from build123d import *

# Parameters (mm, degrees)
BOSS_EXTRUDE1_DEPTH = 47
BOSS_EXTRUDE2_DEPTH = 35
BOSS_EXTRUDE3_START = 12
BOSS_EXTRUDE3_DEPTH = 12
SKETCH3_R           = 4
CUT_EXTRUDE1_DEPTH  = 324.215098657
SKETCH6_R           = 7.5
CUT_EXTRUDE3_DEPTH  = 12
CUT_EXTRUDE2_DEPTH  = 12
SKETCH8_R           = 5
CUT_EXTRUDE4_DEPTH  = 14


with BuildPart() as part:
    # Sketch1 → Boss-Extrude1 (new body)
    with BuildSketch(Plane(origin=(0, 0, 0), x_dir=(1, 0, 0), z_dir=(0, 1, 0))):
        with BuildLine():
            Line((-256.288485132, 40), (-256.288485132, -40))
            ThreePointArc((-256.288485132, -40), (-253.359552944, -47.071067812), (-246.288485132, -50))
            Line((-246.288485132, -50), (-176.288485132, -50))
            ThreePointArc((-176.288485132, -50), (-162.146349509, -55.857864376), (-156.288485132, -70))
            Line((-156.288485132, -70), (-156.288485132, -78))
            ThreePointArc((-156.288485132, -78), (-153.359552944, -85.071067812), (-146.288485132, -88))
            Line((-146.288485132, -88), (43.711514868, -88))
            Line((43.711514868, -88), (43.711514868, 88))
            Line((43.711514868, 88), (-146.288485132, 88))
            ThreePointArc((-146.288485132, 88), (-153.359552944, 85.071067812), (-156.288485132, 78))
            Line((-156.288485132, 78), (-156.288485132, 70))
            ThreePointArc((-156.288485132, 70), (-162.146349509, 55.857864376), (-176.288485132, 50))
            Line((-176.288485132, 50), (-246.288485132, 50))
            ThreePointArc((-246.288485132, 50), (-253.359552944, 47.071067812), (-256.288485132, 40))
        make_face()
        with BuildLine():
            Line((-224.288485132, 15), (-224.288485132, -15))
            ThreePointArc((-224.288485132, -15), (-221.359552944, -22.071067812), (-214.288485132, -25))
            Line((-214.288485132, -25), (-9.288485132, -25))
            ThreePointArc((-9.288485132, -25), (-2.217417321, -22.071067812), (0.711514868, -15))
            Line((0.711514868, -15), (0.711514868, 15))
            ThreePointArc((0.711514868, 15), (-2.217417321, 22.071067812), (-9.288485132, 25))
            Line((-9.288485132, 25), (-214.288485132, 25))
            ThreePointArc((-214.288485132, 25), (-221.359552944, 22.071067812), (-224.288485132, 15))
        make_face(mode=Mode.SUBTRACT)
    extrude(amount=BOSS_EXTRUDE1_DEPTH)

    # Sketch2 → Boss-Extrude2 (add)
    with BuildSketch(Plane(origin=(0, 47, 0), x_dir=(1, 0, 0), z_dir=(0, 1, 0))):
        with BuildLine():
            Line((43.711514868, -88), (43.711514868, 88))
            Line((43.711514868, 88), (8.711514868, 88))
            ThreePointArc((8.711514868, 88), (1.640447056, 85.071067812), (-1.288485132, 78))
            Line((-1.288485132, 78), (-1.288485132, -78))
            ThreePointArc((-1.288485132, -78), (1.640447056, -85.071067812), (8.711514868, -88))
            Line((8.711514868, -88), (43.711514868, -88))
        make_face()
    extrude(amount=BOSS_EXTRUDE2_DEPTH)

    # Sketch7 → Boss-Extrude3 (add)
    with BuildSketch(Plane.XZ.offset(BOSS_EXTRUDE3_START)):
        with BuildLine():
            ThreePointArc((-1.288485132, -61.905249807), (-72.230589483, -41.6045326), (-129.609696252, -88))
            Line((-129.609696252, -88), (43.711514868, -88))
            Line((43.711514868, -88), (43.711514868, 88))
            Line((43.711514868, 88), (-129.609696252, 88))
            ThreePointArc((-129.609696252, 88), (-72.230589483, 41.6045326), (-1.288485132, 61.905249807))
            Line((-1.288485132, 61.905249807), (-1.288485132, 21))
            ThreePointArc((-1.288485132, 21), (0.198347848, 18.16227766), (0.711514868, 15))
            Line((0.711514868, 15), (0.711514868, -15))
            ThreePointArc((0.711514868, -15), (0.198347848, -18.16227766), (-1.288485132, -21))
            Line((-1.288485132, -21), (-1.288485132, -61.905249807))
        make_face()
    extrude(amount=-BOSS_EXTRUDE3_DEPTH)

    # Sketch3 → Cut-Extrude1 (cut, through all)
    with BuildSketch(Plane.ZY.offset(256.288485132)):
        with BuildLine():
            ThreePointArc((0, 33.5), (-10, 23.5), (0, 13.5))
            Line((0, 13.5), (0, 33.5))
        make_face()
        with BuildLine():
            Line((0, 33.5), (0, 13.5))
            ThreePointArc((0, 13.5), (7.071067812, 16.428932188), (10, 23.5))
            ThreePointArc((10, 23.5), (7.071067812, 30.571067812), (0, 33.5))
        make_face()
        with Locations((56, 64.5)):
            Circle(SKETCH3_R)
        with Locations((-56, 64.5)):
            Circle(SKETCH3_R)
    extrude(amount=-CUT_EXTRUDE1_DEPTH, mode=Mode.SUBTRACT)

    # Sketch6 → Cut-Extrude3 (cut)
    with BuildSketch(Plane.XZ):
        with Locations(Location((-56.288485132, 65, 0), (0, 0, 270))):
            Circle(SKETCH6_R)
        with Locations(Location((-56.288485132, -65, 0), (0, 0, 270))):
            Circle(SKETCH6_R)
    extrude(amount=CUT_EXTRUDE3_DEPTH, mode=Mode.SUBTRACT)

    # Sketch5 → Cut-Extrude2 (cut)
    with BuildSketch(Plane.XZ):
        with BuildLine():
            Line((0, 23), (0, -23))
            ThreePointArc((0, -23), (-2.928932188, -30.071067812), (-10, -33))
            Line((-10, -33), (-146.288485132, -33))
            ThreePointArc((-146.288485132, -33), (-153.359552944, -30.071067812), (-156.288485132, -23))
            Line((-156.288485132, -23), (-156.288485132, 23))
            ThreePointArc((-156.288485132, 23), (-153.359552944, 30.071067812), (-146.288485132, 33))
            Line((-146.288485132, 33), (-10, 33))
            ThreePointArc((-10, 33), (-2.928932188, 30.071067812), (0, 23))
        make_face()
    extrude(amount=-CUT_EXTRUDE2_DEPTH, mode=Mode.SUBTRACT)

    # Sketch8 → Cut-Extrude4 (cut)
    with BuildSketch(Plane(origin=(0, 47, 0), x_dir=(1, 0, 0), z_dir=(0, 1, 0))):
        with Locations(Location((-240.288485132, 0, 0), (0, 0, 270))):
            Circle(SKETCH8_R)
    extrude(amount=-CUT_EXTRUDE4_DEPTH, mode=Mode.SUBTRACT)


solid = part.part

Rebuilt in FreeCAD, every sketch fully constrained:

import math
import FreeCAD as App
import Part
import Sketcher
Q = App.Units.Quantity

doc = App.newDocument("Part")
body = doc.addObject("PartDesign::Body", "Body")

# Sketch on XZ plane
sketch1 = body.newObject("Sketcher::SketchObject", "Sketch")
sketch1.AttachmentSupport = (doc.getObject("XZ_Plane"), [""])
sketch1.MapMode = "FlatFace"
sketch1.addGeometry(Part.LineSegment(App.Vector(-256, -40, 0), App.Vector(-256, 40, 0)), False)
sketch1.addGeometry(Part.ArcOfCircle(Part.Circle(App.Vector(-246, 40, 0), App.Vector(0, 0, 1), 10), math.radians(90), math.radians(180)), False)
sketch1.addGeometry(Part.LineSegment(App.Vector(-246, 50, 0), App.Vector(-176, 50, 0)), False)
sketch1.addGeometry(Part.ArcOfCircle(Part.Circle(App.Vector(-176, 70, 0), App.Vector(0, 0, 1), 20), math.radians(-90), math.radians(0)), False)
sketch1.addGeometry(Part.LineSegment(App.Vector(-156, 70, 0), App.Vector(-156, 78, 0)), False)
sketch1.addGeometry(Part.ArcOfCircle(Part.Circle(App.Vector(-146, 78, 0), App.Vector(0, 0, 1), 10), math.radians(90), math.radians(180)), False)
sketch1.addGeometry(Part.LineSegment(App.Vector(-146, 88, 0), App.Vector(44, 88, 0)), False)
sketch1.addGeometry(Part.LineSegment(App.Vector(44, 88, 0), App.Vector(44, -88, 0)), False)
sketch1.addGeometry(Part.LineSegment(App.Vector(44, -88, 0), App.Vector(-146, -88, 0)), False)
sketch1.addGeometry(Part.ArcOfCircle(Part.Circle(App.Vector(-146, -78, 0), App.Vector(0, 0, 1), 10), math.radians(180), math.radians(270)), False)
sketch1.addGeometry(Part.LineSegment(App.Vector(-156, -78, 0), App.Vector(-156, -70, 0)), False)
sketch1.addGeometry(Part.ArcOfCircle(Part.Circle(App.Vector(-176, -70, 0), App.Vector(0, 0, 1), 20), math.radians(0), math.radians(90)), False)
sketch1.addGeometry(Part.LineSegment(App.Vector(-176, -50, 0), App.Vector(-246, -50, 0)), False)
sketch1.addGeometry(Part.ArcOfCircle(Part.Circle(App.Vector(-246, -40, 0), App.Vector(0, 0, 1), 10), math.radians(180), math.radians(270)), False)
sketch1.addGeometry(Part.LineSegment(App.Vector(-224, 15, 0), App.Vector(-224, -15, 0)), False)
sketch1.addGeometry(Part.ArcOfCircle(Part.Circle(App.Vector(-214, -15, 0), App.Vector(0, 0, 1), 10), math.radians(180), math.radians(270)), False)
sketch1.addGeometry(Part.LineSegment(App.Vector(-214, -25, 0), App.Vector(-9, -25, 0)), False)
sketch1.addGeometry(Part.ArcOfCircle(Part.Circle(App.Vector(-9, -15, 0), App.Vector(0, 0, 1), 10), math.radians(-90), math.radians(0)), False)
sketch1.addGeometry(Part.LineSegment(App.Vector(1, -15, 0), App.Vector(1, 15, 0)), False)
sketch1.addGeometry(Part.ArcOfCircle(Part.Circle(App.Vector(-9, 15, 0), App.Vector(0, 0, 1), 10), math.radians(0), math.radians(90)), False)
sketch1.addGeometry(Part.LineSegment(App.Vector(-9, 25, 0), App.Vector(-214, 25, 0)), False)
sketch1.addGeometry(Part.ArcOfCircle(Part.Circle(App.Vector(-214, 15, 0), App.Vector(0, 0, 1), 10), math.radians(90), math.radians(180)), False)
sketch1.addConstraint(Sketcher.Constraint("Tangent", 0, 2, 1, 2))
sketch1.addConstraint(Sketcher.Constraint("Tangent", 1, 1, 2, 1))
sketch1.addConstraint(Sketcher.Constraint("Tangent", 2, 2, 3, 1))
sketch1.addConstraint(Sketcher.Constraint("Tangent", 3, 2, 4, 1))
sketch1.addConstraint(Sketcher.Constraint("Tangent", 4, 2, 5, 2))
sketch1.addConstraint(Sketcher.Constraint("Tangent", 5, 1, 6, 1))
sketch1.addConstraint(Sketcher.Constraint("Coincident", 6, 2, 7, 1))
sketch1.addConstraint(Sketcher.Constraint("Coincident", 7, 2, 8, 1))
sketch1.addConstraint(Sketcher.Constraint("Tangent", 8, 2, 9, 2))
sketch1.addConstraint(Sketcher.Constraint("Tangent", 9, 1, 10, 1))
sketch1.addConstraint(Sketcher.Constraint("Tangent", 10, 2, 11, 1))
sketch1.addConstraint(Sketcher.Constraint("Tangent", 11, 2, 12, 1))
sketch1.addConstraint(Sketcher.Constraint("Tangent", 12, 2, 13, 2))
sketch1.addConstraint(Sketcher.Constraint("Tangent", 13, 1, 0, 1))
sketch1.addConstraint(Sketcher.Constraint("Tangent", 14, 2, 15, 1))
sketch1.addConstraint(Sketcher.Constraint("Tangent", 15, 2, 16, 1))
sketch1.addConstraint(Sketcher.Constraint("Tangent", 16, 2, 17, 1))
sketch1.addConstraint(Sketcher.Constraint("Tangent", 17, 2, 18, 1))
sketch1.addConstraint(Sketcher.Constraint("Tangent", 18, 2, 19, 1))
sketch1.addConstraint(Sketcher.Constraint("Tangent", 19, 2, 20, 1))
sketch1.addConstraint(Sketcher.Constraint("Tangent", 20, 2, 21, 1))
sketch1.addConstraint(Sketcher.Constraint("Tangent", 21, 2, 14, 1))
sketch1.addConstraint(Sketcher.Constraint("Vertical", 0))
sketch1.addConstraint(Sketcher.Constraint("Horizontal", 2))
sketch1.addConstraint(Sketcher.Constraint("Vertical", 4))
sketch1.addConstraint(Sketcher.Constraint("Horizontal", 6))
sketch1.addConstraint(Sketcher.Constraint("Vertical", 7))
sketch1.addConstraint(Sketcher.Constraint("Horizontal", 8))
sketch1.addConstraint(Sketcher.Constraint("Vertical", 10))
sketch1.addConstraint(Sketcher.Constraint("Horizontal", 12))
sketch1.addConstraint(Sketcher.Constraint("Vertical", 14))
sketch1.addConstraint(Sketcher.Constraint("Horizontal", 16))
sketch1.addConstraint(Sketcher.Constraint("Vertical", 18))
sketch1.addConstraint(Sketcher.Constraint("Horizontal", 20))
sketch1.addConstraint(Sketcher.Constraint("Equal", 1, 5))
sketch1.addConstraint(Sketcher.Constraint("Equal", 5, 9))
sketch1.addConstraint(Sketcher.Constraint("Equal", 3, 11))
sketch1.addConstraint(Sketcher.Constraint("Equal", 9, 13))
sketch1.addConstraint(Sketcher.Constraint("Equal", 13, 15))
sketch1.addConstraint(Sketcher.Constraint("Equal", 15, 17))
sketch1.addConstraint(Sketcher.Constraint("Equal", 17, 19))
sketch1.addConstraint(Sketcher.Constraint("Equal", 19, 21))
sketch1.addConstraint(Sketcher.Constraint("Symmetric", 5, 3, 9, 3, -1))
sketch1.addConstraint(Sketcher.Constraint("Equal", 4, 10))
sketch1.addConstraint(Sketcher.Constraint("Radius", 1, Q("10 mm")))
sketch1.addConstraint(Sketcher.Constraint("Radius", 3, Q("20 mm")))
sketch1.addConstraint(Sketcher.Constraint("DistanceX", 2, 1, 2, 2, Q("70 mm")))
sketch1.addConstraint(Sketcher.Constraint("DistanceX", 6, 1, 6, 2, Q("190 mm")))
sketch1.addConstraint(Sketcher.Constraint("DistanceX", 16, 1, 16, 2, Q("205 mm")))
sketch1.addConstraint(Sketcher.Constraint("DistanceY", 0, 1, 0, 2, Q("80 mm")))
sketch1.addConstraint(Sketcher.Constraint("DistanceY", 4, 1, 4, 2, Q("8 mm")))
sketch1.addConstraint(Sketcher.Constraint("DistanceY", 14, 2, 14, 1, Q("30 mm")))
sketch1.addConstraint(Sketcher.Constraint("DistanceY", 15, 3, -1, 1, Q("15 mm")))
sketch1.addConstraint(Sketcher.Constraint("DistanceX", 13, 3, 15, 3, Q("32 mm")))
sketch1.addConstraint(Sketcher.Constraint("DistanceX", 1, 3, -1, 1, Q("246.288485 mm")))
pad1 = body.newObject("PartDesign::Pad", "Pad")
pad1.Profile = sketch1
pad1.Length = 47
pad1.Reversed = True

# Sketch on XZ plane
sketch2 = body.newObject("Sketcher::SketchObject", "Sketch001")
sketch2.AttachmentSupport = (doc.getObject("XZ_Plane"), [""])
sketch2.MapMode = "FlatFace"
sketch2.AttachmentOffset = App.Placement(App.Vector(0, 0, -47), App.Rotation())
sketch2.addGeometry(Part.LineSegment(App.Vector(44, 88, 0), App.Vector(44, -88, 0)), False)
sketch2.addGeometry(Part.LineSegment(App.Vector(44, -88, 0), App.Vector(9, -88, 0)), False)
sketch2.addGeometry(Part.ArcOfCircle(Part.Circle(App.Vector(9, -78, 0), App.Vector(0, 0, 1), 10), math.radians(180), math.radians(270)), False)
sketch2.addGeometry(Part.LineSegment(App.Vector(-1, -78, 0), App.Vector(-1, 78, 0)), False)
sketch2.addGeometry(Part.ArcOfCircle(Part.Circle(App.Vector(9, 78, 0), App.Vector(0, 0, 1), 10), math.radians(90), math.radians(180)), False)
sketch2.addGeometry(Part.LineSegment(App.Vector(9, 88, 0), App.Vector(44, 88, 0)), False)
sketch2.addConstraint(Sketcher.Constraint("Coincident", 0, 2, 1, 1))
sketch2.addConstraint(Sketcher.Constraint("Tangent", 1, 2, 2, 2))
sketch2.addConstraint(Sketcher.Constraint("Tangent", 2, 1, 3, 1))
sketch2.addConstraint(Sketcher.Constraint("Tangent", 3, 2, 4, 2))
sketch2.addConstraint(Sketcher.Constraint("Tangent", 4, 1, 5, 1))
sketch2.addConstraint(Sketcher.Constraint("Coincident", 5, 2, 0, 1))
sketch2.addConstraint(Sketcher.Constraint("Vertical", 0))
sketch2.addConstraint(Sketcher.Constraint("Horizontal", 1))
sketch2.addConstraint(Sketcher.Constraint("Vertical", 3))
sketch2.addConstraint(Sketcher.Constraint("Horizontal", 5))
sketch2.addConstraint(Sketcher.Constraint("Equal", 2, 4))
sketch2.addConstraint(Sketcher.Constraint("Radius", 2, Q("10 mm")))
sketch2.addConstraint(Sketcher.Constraint("DistanceX", 1, 2, 1, 1, Q("35 mm")))
sketch2.addConstraint(Sketcher.Constraint("DistanceY", 0, 2, 0, 1, Q("176 mm")))
sketch2.addConstraint(Sketcher.Constraint("DistanceY", 2, 3, -1, 1, Q("78 mm")))
sketch2.addConstraint(Sketcher.Constraint("DistanceX", -1, 1, 2, 3, Q("8.711515 mm")))
pad2 = body.newObject("PartDesign::Pad", "Pad001")
pad2.Profile = sketch2
pad2.Length = 35
pad2.Reversed = True

# Sketch on XZ plane
sketch3 = body.newObject("Sketcher::SketchObject", "Sketch002")
sketch3.AttachmentSupport = (doc.getObject("XZ_Plane"), [""])
sketch3.MapMode = "FlatFace"
sketch3.AttachmentOffset = App.Placement(App.Vector(0, 0, 12), App.Rotation())
sketch3.addGeometry(Part.ArcOfCircle(Part.Circle(App.Vector(-56, -120, 0), App.Vector(0, 0, 1), 80), math.radians(47), math.radians(156)), False)
sketch3.addGeometry(Part.LineSegment(App.Vector(-130, -88, 0), App.Vector(44, -88, 0)), False)
sketch3.addGeometry(Part.LineSegment(App.Vector(44, -88, 0), App.Vector(44, 88, 0)), False)
sketch3.addGeometry(Part.LineSegment(App.Vector(44, 88, 0), App.Vector(-130, 88, 0)), False)
sketch3.addGeometry(Part.ArcOfCircle(Part.Circle(App.Vector(-56, 120, 0), App.Vector(0, 0, 1), 80), math.radians(-156), math.radians(-47)), False)
sketch3.addGeometry(Part.LineSegment(App.Vector(-1, 62, 0), App.Vector(-1, 21, 0)), False)
sketch3.addGeometry(Part.ArcOfCircle(Part.Circle(App.Vector(-9, 15, 0), App.Vector(0, 0, 1), 10), math.radians(0), math.radians(37)), False)
sketch3.addGeometry(Part.LineSegment(App.Vector(1, 15, 0), App.Vector(1, -15, 0)), False)
sketch3.addGeometry(Part.ArcOfCircle(Part.Circle(App.Vector(-9, -15, 0), App.Vector(0, 0, 1), 10), math.radians(-37), math.radians(0)), False)
sketch3.addGeometry(Part.LineSegment(App.Vector(-1, -21, 0), App.Vector(-1, -62, 0)), False)
sketch3.addConstraint(Sketcher.Constraint("Coincident", 0, 2, 1, 1))
sketch3.addConstraint(Sketcher.Constraint("Coincident", 1, 2, 2, 1))
sketch3.addConstraint(Sketcher.Constraint("Coincident", 2, 2, 3, 1))
sketch3.addConstraint(Sketcher.Constraint("Coincident", 3, 2, 4, 1))
sketch3.addConstraint(Sketcher.Constraint("Coincident", 4, 2, 5, 1))
sketch3.addConstraint(Sketcher.Constraint("Coincident", 5, 2, 6, 2))
sketch3.addConstraint(Sketcher.Constraint("Tangent", 6, 1, 7, 1))
sketch3.addConstraint(Sketcher.Constraint("Tangent", 7, 2, 8, 2))
sketch3.addConstraint(Sketcher.Constraint("Coincident", 8, 1, 9, 1))
sketch3.addConstraint(Sketcher.Constraint("Coincident", 9, 2, 0, 1))
sketch3.addConstraint(Sketcher.Constraint("Horizontal", 1))
sketch3.addConstraint(Sketcher.Constraint("Vertical", 2))
sketch3.addConstraint(Sketcher.Constraint("Horizontal", 3))
sketch3.addConstraint(Sketcher.Constraint("Vertical", 5))
sketch3.addConstraint(Sketcher.Constraint("Vertical", 7))
sketch3.addConstraint(Sketcher.Constraint("Vertical", 9))
sketch3.addConstraint(Sketcher.Constraint("Equal", 0, 4))
sketch3.addConstraint(Sketcher.Constraint("Equal", 6, 8))
sketch3.addConstraint(Sketcher.Constraint("Symmetric", 0, 3, 4, 3, -1))
sketch3.addConstraint(Sketcher.Constraint("Symmetric", 5, 2, 8, 1, -1))
sketch3.addConstraint(Sketcher.Constraint("Vertical", 0, 2, 3, 2))
sketch3.addConstraint(Sketcher.Constraint("Radius", 0, Q("80 mm")))
sketch3.addConstraint(Sketcher.Constraint("Radius", 6, Q("10 mm")))
sketch3.addConstraint(Sketcher.Constraint("DistanceY", 2, 1, 2, 2, Q("176 mm")))
sketch3.addConstraint(Sketcher.Constraint("DistanceY", 7, 2, 7, 1, Q("30 mm")))
sketch3.addConstraint(Sketcher.Constraint("DistanceY", 0, 3, -1, 1, Q("120 mm")))
sketch3.addConstraint(Sketcher.Constraint("DistanceY", -1, 1, 5, 2, Q("21 mm")))
sketch3.addConstraint(Sketcher.Constraint("DistanceX", 4, 3, 6, 3, Q("47 mm")))
sketch3.addConstraint(Sketcher.Constraint("DistanceX", 8, 3, 1, 2, Q("53 mm")))
sketch3.addConstraint(Sketcher.Constraint("DistanceX", 0, 3, -1, 1, Q("56.288485 mm")))
pad3 = body.newObject("PartDesign::Pad", "Pad002")
pad3.Profile = sketch3
pad3.Length = 12
pad3.Reversed = True

# Sketch on YZ plane
sketch4 = body.newObject("Sketcher::SketchObject", "Sketch003")
sketch4.AttachmentSupport = (doc.getObject("YZ_Plane"), [""])
sketch4.MapMode = "FlatFace"
sketch4.AttachmentOffset = App.Placement(App.Vector(0, 0, -256.288485), App.Rotation())
sketch4.addGeometry(Part.ArcOfCircle(Part.Circle(App.Vector(23.5, 0, 0), App.Vector(0, 0, 1), 10), math.radians(180), math.radians(360)), False)
sketch4.addGeometry(Part.ArcOfCircle(Part.Circle(App.Vector(23.5, 0, 0), App.Vector(0, 0, 1), 10), math.radians(90), math.radians(180)), False)
sketch4.addGeometry(Part.ArcOfCircle(Part.Circle(App.Vector(23.5, 0, 0), App.Vector(0, 0, 1), 10), math.radians(0), math.radians(90)), False)
sketch4.addGeometry(Part.Circle(App.Vector(64.5, 56, 0), App.Vector(0, 0, 1), 4), False)
sketch4.addGeometry(Part.Circle(App.Vector(64.5, -56, 0), App.Vector(0, 0, 1), 4), False)
sketch4.addConstraint(Sketcher.Constraint("Tangent", 0, 1, 1, 2))
sketch4.addConstraint(Sketcher.Constraint("Tangent", 1, 1, 2, 2))
sketch4.addConstraint(Sketcher.Constraint("Tangent", 2, 1, 0, 2))
sketch4.addConstraint(Sketcher.Constraint("Equal", 3, 4))
sketch4.addConstraint(Sketcher.Constraint("Symmetric", 3, 3, 4, 3, -1))
sketch4.addConstraint(Sketcher.Constraint("PointOnObject", 0, 3, -1))
sketch4.addConstraint(Sketcher.Constraint("PointOnObject", 0, 1, -1))
sketch4.addConstraint(Sketcher.Constraint("PointOnObject", 2, 1, -1))
sketch4.addConstraint(Sketcher.Constraint("Vertical", 2, 3, 1, 1))
sketch4.addConstraint(Sketcher.Constraint("Diameter", 3, Q("8 mm")))
sketch4.addConstraint(Sketcher.Constraint("Radius", 0, Q("10 mm")))
sketch4.addConstraint(Sketcher.Constraint("DistanceY", -1, 1, 3, 3, Q("56 mm")))
sketch4.addConstraint(Sketcher.Constraint("DistanceX", 0, 3, 3, 3, Q("41 mm")))
sketch4.addConstraint(Sketcher.Constraint("DistanceX", -1, 1, 0, 3, Q("23.5 mm")))
pocket1 = body.newObject("PartDesign::Pocket", "Pocket")
pocket1.Profile = sketch4
pocket1.Type = "ThroughAll"
pocket1.Reversed = True

# Sketch on XZ plane
sketch5 = body.newObject("Sketcher::SketchObject", "Sketch004")
sketch5.AttachmentSupport = (doc.getObject("XZ_Plane"), [""])
sketch5.MapMode = "FlatFace"
sketch5.addGeometry(Part.Circle(App.Vector(-56, 65, 0), App.Vector(0, 0, 1), 8), False)
sketch5.addGeometry(Part.Circle(App.Vector(-56, -65, 0), App.Vector(0, 0, 1), 8), False)
sketch5.addConstraint(Sketcher.Constraint("Equal", 0, 1))
sketch5.addConstraint(Sketcher.Constraint("Symmetric", 0, 3, 1, 3, -1))
sketch5.addConstraint(Sketcher.Constraint("Diameter", 0, Q("15 mm")))
sketch5.addConstraint(Sketcher.Constraint("DistanceY", -1, 1, 0, 3, Q("65 mm")))
sketch5.addConstraint(Sketcher.Constraint("DistanceX", 0, 3, -1, 1, Q("56.288485 mm")))
pocket2 = body.newObject("PartDesign::Pocket", "Pocket001")
pocket2.Profile = sketch5
pocket2.Length = 12
pocket2.Reversed = True

# Sketch on XZ plane
sketch6 = body.newObject("Sketcher::SketchObject", "Sketch005")
sketch6.AttachmentSupport = (doc.getObject("XZ_Plane"), [""])
sketch6.MapMode = "FlatFace"
sketch6.addGeometry(Part.LineSegment(App.Vector(0, -23, 0), App.Vector(0, 23, 0)), False)
sketch6.addGeometry(Part.ArcOfCircle(Part.Circle(App.Vector(-10, 23, 0), App.Vector(0, 0, 1), 10), math.radians(0), math.radians(90)), False)
sketch6.addGeometry(Part.LineSegment(App.Vector(-10, 33, 0), App.Vector(-146, 33, 0)), False)
sketch6.addGeometry(Part.ArcOfCircle(Part.Circle(App.Vector(-146, 23, 0), App.Vector(0, 0, 1), 10), math.radians(90), math.radians(180)), False)
sketch6.addGeometry(Part.LineSegment(App.Vector(-156, 23, 0), App.Vector(-156, -23, 0)), False)
sketch6.addGeometry(Part.ArcOfCircle(Part.Circle(App.Vector(-146, -23, 0), App.Vector(0, 0, 1), 10), math.radians(180), math.radians(270)), False)
sketch6.addGeometry(Part.LineSegment(App.Vector(-146, -33, 0), App.Vector(-10, -33, 0)), False)
sketch6.addGeometry(Part.ArcOfCircle(Part.Circle(App.Vector(-10, -23, 0), App.Vector(0, 0, 1), 10), math.radians(-90), math.radians(0)), False)
sketch6.addConstraint(Sketcher.Constraint("Tangent", 0, 2, 1, 1))
sketch6.addConstraint(Sketcher.Constraint("Tangent", 1, 2, 2, 1))
sketch6.addConstraint(Sketcher.Constraint("Tangent", 2, 2, 3, 1))
sketch6.addConstraint(Sketcher.Constraint("Tangent", 3, 2, 4, 1))
sketch6.addConstraint(Sketcher.Constraint("Tangent", 4, 2, 5, 1))
sketch6.addConstraint(Sketcher.Constraint("Tangent", 5, 2, 6, 1))
sketch6.addConstraint(Sketcher.Constraint("Tangent", 6, 2, 7, 1))
sketch6.addConstraint(Sketcher.Constraint("Tangent", 7, 2, 0, 1))
sketch6.addConstraint(Sketcher.Constraint("Vertical", 0))
sketch6.addConstraint(Sketcher.Constraint("Horizontal", 2))
sketch6.addConstraint(Sketcher.Constraint("Vertical", 4))
sketch6.addConstraint(Sketcher.Constraint("Horizontal", 6))
sketch6.addConstraint(Sketcher.Constraint("Equal", 1, 3))
sketch6.addConstraint(Sketcher.Constraint("Equal", 3, 5))
sketch6.addConstraint(Sketcher.Constraint("Equal", 5, 7))
sketch6.addConstraint(Sketcher.Constraint("Symmetric", 0, 2, 7, 2, -1, 1))
sketch6.addConstraint(Sketcher.Constraint("Radius", 1, Q("10 mm")))
sketch6.addConstraint(Sketcher.Constraint("DistanceY", 0, 1, 0, 2, Q("46 mm")))
sketch6.addConstraint(Sketcher.Constraint("DistanceX", 2, 2, 2, 1, Q("136.288485 mm")))
pocket3 = body.newObject("PartDesign::Pocket", "Pocket002")
pocket3.Profile = sketch6
pocket3.Length = 12

# Sketch on XZ plane
sketch7 = body.newObject("Sketcher::SketchObject", "Sketch006")
sketch7.AttachmentSupport = (doc.getObject("XZ_Plane"), [""])
sketch7.MapMode = "FlatFace"
sketch7.AttachmentOffset = App.Placement(App.Vector(0, 0, -47), App.Rotation())
sketch7.addGeometry(Part.Circle(App.Vector(-240, 0, 0), App.Vector(0, 0, 1), 5), False)
sketch7.addConstraint(Sketcher.Constraint("PointOnObject", 0, 3, -1))
sketch7.addConstraint(Sketcher.Constraint("Diameter", 0, Q("10 mm")))
sketch7.addConstraint(Sketcher.Constraint("DistanceX", 0, 3, -1, 1, Q("240.288485 mm")))
pocket4 = body.newObject("PartDesign::Pocket", "Pocket003")
pocket4.Profile = sketch7
pocket4.Length = 14
pocket4.Reversed = True

doc.recompute()
